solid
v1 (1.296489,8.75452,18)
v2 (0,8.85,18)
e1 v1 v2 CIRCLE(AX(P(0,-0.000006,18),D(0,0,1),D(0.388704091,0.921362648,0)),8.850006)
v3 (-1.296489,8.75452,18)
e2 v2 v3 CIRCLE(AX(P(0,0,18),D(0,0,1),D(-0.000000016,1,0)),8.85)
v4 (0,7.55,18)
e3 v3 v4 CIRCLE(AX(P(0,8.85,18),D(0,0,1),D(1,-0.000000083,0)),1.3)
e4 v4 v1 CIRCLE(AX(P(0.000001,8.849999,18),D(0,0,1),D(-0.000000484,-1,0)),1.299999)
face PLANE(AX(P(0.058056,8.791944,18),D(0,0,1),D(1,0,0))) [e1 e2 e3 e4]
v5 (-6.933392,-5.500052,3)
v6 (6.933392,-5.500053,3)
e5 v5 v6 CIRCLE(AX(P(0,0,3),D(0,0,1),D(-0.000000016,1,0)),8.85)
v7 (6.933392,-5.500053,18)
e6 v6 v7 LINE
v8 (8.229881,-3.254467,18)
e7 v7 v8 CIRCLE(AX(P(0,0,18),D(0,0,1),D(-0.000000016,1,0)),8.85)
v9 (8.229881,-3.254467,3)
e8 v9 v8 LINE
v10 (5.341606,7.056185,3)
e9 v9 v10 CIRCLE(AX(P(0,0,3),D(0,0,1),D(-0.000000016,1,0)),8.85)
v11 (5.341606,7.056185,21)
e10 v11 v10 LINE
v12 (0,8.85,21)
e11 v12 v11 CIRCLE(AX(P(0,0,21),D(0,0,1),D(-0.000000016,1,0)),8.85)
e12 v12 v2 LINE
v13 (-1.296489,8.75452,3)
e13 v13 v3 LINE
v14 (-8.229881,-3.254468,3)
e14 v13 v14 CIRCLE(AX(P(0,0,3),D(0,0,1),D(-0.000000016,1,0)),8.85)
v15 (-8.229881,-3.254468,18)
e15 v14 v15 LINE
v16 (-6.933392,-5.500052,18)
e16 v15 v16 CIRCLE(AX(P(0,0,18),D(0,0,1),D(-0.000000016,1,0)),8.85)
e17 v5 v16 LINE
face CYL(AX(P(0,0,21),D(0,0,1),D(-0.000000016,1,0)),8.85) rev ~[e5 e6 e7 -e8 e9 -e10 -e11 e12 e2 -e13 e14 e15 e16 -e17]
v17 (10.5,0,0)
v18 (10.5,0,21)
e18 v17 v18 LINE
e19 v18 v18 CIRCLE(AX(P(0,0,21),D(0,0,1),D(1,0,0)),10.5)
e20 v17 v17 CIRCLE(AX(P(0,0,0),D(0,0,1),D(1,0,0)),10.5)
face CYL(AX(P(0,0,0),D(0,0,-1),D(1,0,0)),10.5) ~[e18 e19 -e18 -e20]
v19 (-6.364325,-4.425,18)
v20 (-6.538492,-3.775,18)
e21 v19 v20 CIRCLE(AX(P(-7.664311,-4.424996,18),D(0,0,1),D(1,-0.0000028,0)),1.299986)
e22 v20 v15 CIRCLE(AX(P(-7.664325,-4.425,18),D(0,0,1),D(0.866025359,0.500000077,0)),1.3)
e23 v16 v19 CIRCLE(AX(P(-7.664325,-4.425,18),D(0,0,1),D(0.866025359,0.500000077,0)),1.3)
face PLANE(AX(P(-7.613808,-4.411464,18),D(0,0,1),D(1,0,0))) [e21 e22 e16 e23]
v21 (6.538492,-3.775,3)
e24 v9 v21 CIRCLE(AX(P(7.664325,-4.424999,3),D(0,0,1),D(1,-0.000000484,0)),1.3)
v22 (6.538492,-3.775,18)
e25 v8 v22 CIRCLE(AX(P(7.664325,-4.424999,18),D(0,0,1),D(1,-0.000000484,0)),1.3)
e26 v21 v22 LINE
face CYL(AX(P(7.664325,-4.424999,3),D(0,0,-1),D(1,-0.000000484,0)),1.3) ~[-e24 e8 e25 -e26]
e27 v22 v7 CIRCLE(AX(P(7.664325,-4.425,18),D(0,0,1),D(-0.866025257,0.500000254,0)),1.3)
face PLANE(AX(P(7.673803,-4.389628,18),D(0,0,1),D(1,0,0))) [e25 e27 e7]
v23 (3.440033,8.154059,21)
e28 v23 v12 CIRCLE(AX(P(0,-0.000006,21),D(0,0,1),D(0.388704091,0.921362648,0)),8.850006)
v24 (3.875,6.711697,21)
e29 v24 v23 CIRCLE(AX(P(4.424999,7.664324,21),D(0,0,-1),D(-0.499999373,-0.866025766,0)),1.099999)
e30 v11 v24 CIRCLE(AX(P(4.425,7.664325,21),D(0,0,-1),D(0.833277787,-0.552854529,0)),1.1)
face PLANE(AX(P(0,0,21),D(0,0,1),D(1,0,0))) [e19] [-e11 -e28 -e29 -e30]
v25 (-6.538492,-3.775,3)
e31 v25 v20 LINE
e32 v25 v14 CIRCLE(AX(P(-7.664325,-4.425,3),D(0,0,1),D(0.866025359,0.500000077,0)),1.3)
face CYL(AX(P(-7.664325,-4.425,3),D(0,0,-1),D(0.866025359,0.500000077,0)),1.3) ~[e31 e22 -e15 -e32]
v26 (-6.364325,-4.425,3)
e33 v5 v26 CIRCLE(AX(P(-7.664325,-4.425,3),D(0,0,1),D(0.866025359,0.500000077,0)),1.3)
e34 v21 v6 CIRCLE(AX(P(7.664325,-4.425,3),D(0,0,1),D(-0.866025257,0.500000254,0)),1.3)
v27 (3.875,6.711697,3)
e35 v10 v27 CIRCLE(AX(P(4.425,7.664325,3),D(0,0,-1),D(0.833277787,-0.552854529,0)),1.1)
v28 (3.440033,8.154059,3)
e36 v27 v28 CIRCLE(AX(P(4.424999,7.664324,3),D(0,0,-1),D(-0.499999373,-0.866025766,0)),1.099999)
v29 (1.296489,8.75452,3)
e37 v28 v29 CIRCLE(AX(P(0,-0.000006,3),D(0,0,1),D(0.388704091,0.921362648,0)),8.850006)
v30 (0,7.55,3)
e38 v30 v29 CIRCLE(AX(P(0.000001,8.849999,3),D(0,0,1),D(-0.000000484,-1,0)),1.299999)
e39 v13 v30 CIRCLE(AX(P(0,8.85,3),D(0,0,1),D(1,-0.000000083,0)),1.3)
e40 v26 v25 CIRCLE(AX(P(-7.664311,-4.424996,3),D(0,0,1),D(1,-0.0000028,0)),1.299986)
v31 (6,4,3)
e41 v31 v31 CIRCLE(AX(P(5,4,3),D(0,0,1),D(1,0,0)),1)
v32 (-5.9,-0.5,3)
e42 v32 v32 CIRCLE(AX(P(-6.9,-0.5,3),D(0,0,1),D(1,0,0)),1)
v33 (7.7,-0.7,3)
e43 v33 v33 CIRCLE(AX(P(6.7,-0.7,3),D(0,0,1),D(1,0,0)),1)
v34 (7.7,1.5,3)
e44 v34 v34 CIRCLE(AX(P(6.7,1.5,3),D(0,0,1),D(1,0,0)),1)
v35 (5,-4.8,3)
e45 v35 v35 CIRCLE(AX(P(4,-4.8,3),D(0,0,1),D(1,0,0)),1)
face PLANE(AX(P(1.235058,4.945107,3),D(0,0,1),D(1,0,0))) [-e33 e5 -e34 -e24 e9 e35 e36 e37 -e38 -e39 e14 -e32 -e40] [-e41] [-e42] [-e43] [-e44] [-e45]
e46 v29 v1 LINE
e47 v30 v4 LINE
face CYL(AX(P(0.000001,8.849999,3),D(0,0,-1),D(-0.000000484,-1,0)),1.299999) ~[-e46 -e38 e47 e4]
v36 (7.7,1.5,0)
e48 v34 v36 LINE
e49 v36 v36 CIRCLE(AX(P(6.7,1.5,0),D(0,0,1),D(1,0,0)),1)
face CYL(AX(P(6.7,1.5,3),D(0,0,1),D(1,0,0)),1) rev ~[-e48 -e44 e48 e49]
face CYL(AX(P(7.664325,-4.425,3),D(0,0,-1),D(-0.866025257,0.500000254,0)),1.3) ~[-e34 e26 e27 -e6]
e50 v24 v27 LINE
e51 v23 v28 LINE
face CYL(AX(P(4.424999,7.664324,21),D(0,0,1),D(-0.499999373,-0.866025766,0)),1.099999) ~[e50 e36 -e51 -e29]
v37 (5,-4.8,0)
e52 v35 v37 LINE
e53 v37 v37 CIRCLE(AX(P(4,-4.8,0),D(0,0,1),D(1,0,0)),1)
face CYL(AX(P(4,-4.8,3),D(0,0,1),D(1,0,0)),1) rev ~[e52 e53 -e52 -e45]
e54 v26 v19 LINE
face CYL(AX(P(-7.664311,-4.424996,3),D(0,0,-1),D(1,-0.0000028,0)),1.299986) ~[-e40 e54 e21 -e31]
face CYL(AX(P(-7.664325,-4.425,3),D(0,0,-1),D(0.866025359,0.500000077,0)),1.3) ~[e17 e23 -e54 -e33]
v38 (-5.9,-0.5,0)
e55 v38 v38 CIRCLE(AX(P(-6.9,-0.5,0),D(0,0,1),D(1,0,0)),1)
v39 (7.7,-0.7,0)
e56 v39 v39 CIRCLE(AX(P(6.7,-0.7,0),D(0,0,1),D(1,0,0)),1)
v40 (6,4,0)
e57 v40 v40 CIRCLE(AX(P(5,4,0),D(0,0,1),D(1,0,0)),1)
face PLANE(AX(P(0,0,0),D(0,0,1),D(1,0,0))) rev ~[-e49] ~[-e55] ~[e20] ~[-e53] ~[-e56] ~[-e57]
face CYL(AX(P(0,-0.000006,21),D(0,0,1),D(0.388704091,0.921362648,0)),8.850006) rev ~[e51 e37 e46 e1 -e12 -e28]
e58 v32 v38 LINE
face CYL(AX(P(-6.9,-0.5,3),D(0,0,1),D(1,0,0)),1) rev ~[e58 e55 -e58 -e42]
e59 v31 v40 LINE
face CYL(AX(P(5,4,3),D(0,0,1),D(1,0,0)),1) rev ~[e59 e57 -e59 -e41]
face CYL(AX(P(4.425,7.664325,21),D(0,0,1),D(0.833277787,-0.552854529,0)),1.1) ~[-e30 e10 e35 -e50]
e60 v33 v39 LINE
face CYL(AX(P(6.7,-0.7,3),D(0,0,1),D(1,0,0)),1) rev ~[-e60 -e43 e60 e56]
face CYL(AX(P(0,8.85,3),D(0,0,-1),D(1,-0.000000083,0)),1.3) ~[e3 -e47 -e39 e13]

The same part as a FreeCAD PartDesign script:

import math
import FreeCAD as App
import Part
import Sketcher
Q = App.Units.Quantity

doc = App.newDocument("Part")
body = doc.addObject("PartDesign::Body", "Body")

# Sketch on XY plane
sketch1 = body.newObject("Sketcher::SketchObject", "Sketch")
sketch1.AttachmentSupport = (doc.getObject("XY_Plane"), [""])
sketch1.MapMode = "FlatFace"
sketch1.addGeometry(Part.Circle(App.Vector(0, 0, 0), App.Vector(0, 0, 1), 10), False)
sketch1.addConstraint(Sketcher.Constraint("Coincident", 0, 3, -1, 1))
sketch1.addConstraint(Sketcher.Constraint("Diameter", 0, Q("21 mm")))
pad1 = body.newObject("PartDesign::Pad", "Pad")
pad1.Profile = sketch1
pad1.Length = 21

# Sketch on XY plane
sketch2 = body.newObject("Sketcher::SketchObject", "Sketch001")
sketch2.AttachmentSupport = (doc.getObject("XY_Plane"), [""])
sketch2.MapMode = "FlatFace"
sketch2.AttachmentOffset = App.Placement(App.Vector(0, 0, 21), App.Rotation())
sketch2.addGeometry(Part.ArcOfCircle(Part.Circle(App.Vector(4.4, 7.7, 0), App.Vector(0, 0, 1), 1.1), math.radians(154), math.radians(240)), False)
sketch2.addGeometry(Part.ArcOfCircle(Part.Circle(App.Vector(0, 0, 0), App.Vector(0, 0, 1), 8.9), math.radians(67), math.radians(90)), False)
sketch2.addGeometry(Part.ArcOfCircle(Part.Circle(App.Vector(0, 0, 0), App.Vector(0, 0, 1), 8.8), math.radians(90), math.radians(413)), False)
sketch2.addGeometry(Part.ArcOfCircle(Part.Circle(App.Vector(4.4, 7.7, 0), App.Vector(0, 0, 1), 1.1), math.radians(-120), math.radians(-34)), False)
sketch2.addConstraint(Sketcher.Constraint("Coincident", 0, 1, 1, 1))
sketch2.addConstraint(Sketcher.Constraint("Tangent", 1, 2, 2, 1))
sketch2.addConstraint(Sketcher.Constraint("Coincident", 2, 2, 3, 2))
sketch2.addConstraint(Sketcher.Constraint("Tangent", 3, 1, 0, 2))
sketch2.addConstraint(Sketcher.Constraint("Coincident", 1, 3, -1, 1))
sketch2.addConstraint(Sketcher.Constraint("Equal", 0, 3))
sketch2.addConstraint(Sketcher.Constraint("PointOnObject", 1, 2, -2))
sketch2.addConstraint(Sketcher.Constraint("Radius", 0, Q("1.099999 mm")))
sketch2.addConstraint(Sketcher.Constraint("Radius", 2, Q("8.85 mm")))
sketch2.addConstraint(Sketcher.Constraint("DistanceY", -1, 1, 1, 2, Q("8.85 mm")))
sketch2.addConstraint(Sketcher.Constraint("DistanceX", 3, 1, 0, 3, Q("0.549999 mm")))
sketch2.addConstraint(Sketcher.Constraint("DistanceX", -1, 1, 0, 3, Q("4.424999 mm")))
sketch2.addConstraint(Sketcher.Constraint("DistanceY", -1, 1, 0, 1, Q("8.154059 mm")))
pocket1 = body.newObject("PartDesign::Pocket", "Pocket")
pocket1.Profile = sketch2
pocket1.Length = 18

# Sketch on XY plane
sketch3 = body.newObject("Sketcher::SketchObject", "Sketch002")
sketch3.AttachmentSupport = (doc.getObject("XY_Plane"), [""])
sketch3.MapMode = "FlatFace"
sketch3.AttachmentOffset = App.Placement(App.Vector(0, 0, 3), App.Rotation())
sketch3.addGeometry(Part.Circle(App.Vector(-6.9, -0.5, 0), App.Vector(0, 0, 1), 1), False)
sketch3.addGeometry(Part.Circle(App.Vector(5, 4, 0), App.Vector(0, 0, 1), 1), False)
sketch3.addGeometry(Part.Circle(App.Vector(6.7, 1.5, 0), App.Vector(0, 0, 1), 1), False)
sketch3.addGeometry(Part.Circle(App.Vector(4, -4.8, 0), App.Vector(0, 0, 1), 1), False)
sketch3.addGeometry(Part.Circle(App.Vector(6.7, -0.7, 0), App.Vector(0, 0, 1), 1), False)
sketch3.addConstraint(Sketcher.Constraint("Equal", 0, 1))
sketch3.addConstraint(Sketcher.Constraint("Equal", 1, 2))
sketch3.addConstraint(Sketcher.Constraint("Equal", 2, 3))
sketch3.addConstraint(Sketcher.Constraint("Equal", 3, 4))
sketch3.addConstraint(Sketcher.Constraint("Vertical", 2, 3, 4, 3))
sketch3.addConstraint(Sketcher.Constraint("Diameter", 0, Q("2 mm")))
sketch3.addConstraint(Sketcher.Constraint("DistanceX", -1, 1, 1, 3, Q("5 mm")))
sketch3.addConstraint(Sketcher.Constraint("DistanceY", -1, 1, 1, 3, Q("4 mm")))
sketch3.addConstraint(Sketcher.Constraint("DistanceX", -1, 1, 3, 3, Q("4 mm")))
sketch3.addConstraint(Sketcher.Constraint("DistanceY", 0, 3, 2, 3, Q("2 mm")))
sketch3.addConstraint(Sketcher.Constraint("DistanceX", 0, 3, -1, 1, Q("6.9 mm")))
sketch3.addConstraint(Sketcher.Constraint("DistanceY", 0, 3, -1, 1, Q("0.5 mm")))
sketch3.addConstraint(Sketcher.Constraint("DistanceX", -1, 1, 2, 3, Q("6.7 mm")))
sketch3.addConstraint(Sketcher.Constraint("DistanceY", 3, 3, -1, 1, Q("4.8 mm")))
sketch3.addConstraint(Sketcher.Constraint("DistanceY", 4, 3, -1, 1, Q("0.7 mm")))
pocket2 = body.newObject("PartDesign::Pocket", "Pocket001")
pocket2.Profile = sketch3
pocket2.Length = 25

# Sketch on XY plane
sketch4 = body.newObject("Sketcher::SketchObject", "Sketch003")
sketch4.AttachmentSupport = (doc.getObject("XY_Plane"), [""])
sketch4.MapMode = "FlatFace"
sketch4.AttachmentOffset = App.Placement(App.Vector(0, 0, 3), App.Rotation())
sketch4.addGeometry(Part.ArcOfCircle(Part.Circle(App.Vector(0, 8.8, 0), App.Vector(0, 0, 1), 1.3), math.radians(-90), math.radians(0)), False)
sketch4.addGeometry(Part.ArcOfCircle(Part.Circle(App.Vector(0, 8.9, 0), App.Vector(0, 0, 1), 1.3), math.radians(0), math.radians(270)), False)
sketch4.addGeometry(Part.ArcOfCircle(Part.Circle(App.Vector(7.7, -4.4, 0), App.Vector(0, 0, 1), 1.3), math.radians(0), math.radians(150)), False)
sketch4.addGeometry(Part.ArcOfCircle(Part.Circle(App.Vector(7.7, -4.4, 0), App.Vector(0, 0, 1), 1.3), math.radians(150), math.radians(360)), False)
sketch4.addGeometry(Part.ArcOfCircle(Part.Circle(App.Vector(-7.7, -4.4, 0), App.Vector(0, 0, 1), 1.3), math.radians(0), math.radians(30)), False)
sketch4.addGeometry(Part.ArcOfCircle(Part.Circle(App.Vector(-7.7, -4.4, 0), App.Vector(0, 0, 1), 1.3), math.radians(30), math.radians(360)), False)
sketch4.addConstraint(Sketcher.Constraint("Tangent", 0, 1, 1, 2))
sketch4.addConstraint(Sketcher.Constraint("Coincident", 1, 1, 0, 2))
sketch4.addConstraint(Sketcher.Constraint("Tangent", 2, 1, 3, 2))
sketch4.addConstraint(Sketcher.Constraint("Coincident", 3, 1, 2, 2))
sketch4.addConstraint(Sketcher.Constraint("Coincident", 4, 1, 5, 2))
sketch4.addConstraint(Sketcher.Constraint("Coincident", 5, 1, 4, 2))
sketch4.addConstraint(Sketcher.Constraint("Equal", 1, 2))
sketch4.addConstraint(Sketcher.Constraint("Equal", 3, 5))
sketch4.addConstraint(Sketcher.Constraint("Symmetric", 2, 3, 5, 3, -2))
sketch4.addConstraint(Sketcher.Constraint("PointOnObject", 0, 3, -2))
sketch4.addConstraint(Sketcher.Constraint("PointOnObject", 0, 1, -2))
sketch4.addConstraint(Sketcher.Constraint("Horizontal", 0, 3, 1, 1))
sketch4.addConstraint(Sketcher.Constraint("Horizontal", 5, 3, 2, 1))
sketch4.addConstraint(Sketcher.Constraint("Horizontal", 2, 1, 4, 1))
sketch4.addConstraint(Sketcher.Constraint("Horizontal", 3, 1, 5, 1))
sketch4.addConstraint(Sketcher.Constraint("Radius", 0, Q("1.299999 mm")))
sketch4.addConstraint(Sketcher.Constraint("DistanceY", -1, 1, 0, 3, Q("8.849999 mm")))
sketch4.addConstraint(Sketcher.Constraint("DistanceY", 2, 3, 3, 1, Q("0.649999 mm")))
sketch4.addConstraint(Sketcher.Constraint("DistanceY", 2, 3, -1, 1, Q("4.424999 mm")))
sketch4.addConstraint(Sketcher.Constraint("Radius", 4, Q("1.299986 mm")))
sketch4.addConstraint(Sketcher.Constraint("DistanceX", 4, 3, -1, 1, Q("7.664311 mm")))
pad2 = body.newObject("PartDesign::Pad", "Pad001")
pad2.Profile = sketch4
pad2.Length = 15

doc.recompute()
